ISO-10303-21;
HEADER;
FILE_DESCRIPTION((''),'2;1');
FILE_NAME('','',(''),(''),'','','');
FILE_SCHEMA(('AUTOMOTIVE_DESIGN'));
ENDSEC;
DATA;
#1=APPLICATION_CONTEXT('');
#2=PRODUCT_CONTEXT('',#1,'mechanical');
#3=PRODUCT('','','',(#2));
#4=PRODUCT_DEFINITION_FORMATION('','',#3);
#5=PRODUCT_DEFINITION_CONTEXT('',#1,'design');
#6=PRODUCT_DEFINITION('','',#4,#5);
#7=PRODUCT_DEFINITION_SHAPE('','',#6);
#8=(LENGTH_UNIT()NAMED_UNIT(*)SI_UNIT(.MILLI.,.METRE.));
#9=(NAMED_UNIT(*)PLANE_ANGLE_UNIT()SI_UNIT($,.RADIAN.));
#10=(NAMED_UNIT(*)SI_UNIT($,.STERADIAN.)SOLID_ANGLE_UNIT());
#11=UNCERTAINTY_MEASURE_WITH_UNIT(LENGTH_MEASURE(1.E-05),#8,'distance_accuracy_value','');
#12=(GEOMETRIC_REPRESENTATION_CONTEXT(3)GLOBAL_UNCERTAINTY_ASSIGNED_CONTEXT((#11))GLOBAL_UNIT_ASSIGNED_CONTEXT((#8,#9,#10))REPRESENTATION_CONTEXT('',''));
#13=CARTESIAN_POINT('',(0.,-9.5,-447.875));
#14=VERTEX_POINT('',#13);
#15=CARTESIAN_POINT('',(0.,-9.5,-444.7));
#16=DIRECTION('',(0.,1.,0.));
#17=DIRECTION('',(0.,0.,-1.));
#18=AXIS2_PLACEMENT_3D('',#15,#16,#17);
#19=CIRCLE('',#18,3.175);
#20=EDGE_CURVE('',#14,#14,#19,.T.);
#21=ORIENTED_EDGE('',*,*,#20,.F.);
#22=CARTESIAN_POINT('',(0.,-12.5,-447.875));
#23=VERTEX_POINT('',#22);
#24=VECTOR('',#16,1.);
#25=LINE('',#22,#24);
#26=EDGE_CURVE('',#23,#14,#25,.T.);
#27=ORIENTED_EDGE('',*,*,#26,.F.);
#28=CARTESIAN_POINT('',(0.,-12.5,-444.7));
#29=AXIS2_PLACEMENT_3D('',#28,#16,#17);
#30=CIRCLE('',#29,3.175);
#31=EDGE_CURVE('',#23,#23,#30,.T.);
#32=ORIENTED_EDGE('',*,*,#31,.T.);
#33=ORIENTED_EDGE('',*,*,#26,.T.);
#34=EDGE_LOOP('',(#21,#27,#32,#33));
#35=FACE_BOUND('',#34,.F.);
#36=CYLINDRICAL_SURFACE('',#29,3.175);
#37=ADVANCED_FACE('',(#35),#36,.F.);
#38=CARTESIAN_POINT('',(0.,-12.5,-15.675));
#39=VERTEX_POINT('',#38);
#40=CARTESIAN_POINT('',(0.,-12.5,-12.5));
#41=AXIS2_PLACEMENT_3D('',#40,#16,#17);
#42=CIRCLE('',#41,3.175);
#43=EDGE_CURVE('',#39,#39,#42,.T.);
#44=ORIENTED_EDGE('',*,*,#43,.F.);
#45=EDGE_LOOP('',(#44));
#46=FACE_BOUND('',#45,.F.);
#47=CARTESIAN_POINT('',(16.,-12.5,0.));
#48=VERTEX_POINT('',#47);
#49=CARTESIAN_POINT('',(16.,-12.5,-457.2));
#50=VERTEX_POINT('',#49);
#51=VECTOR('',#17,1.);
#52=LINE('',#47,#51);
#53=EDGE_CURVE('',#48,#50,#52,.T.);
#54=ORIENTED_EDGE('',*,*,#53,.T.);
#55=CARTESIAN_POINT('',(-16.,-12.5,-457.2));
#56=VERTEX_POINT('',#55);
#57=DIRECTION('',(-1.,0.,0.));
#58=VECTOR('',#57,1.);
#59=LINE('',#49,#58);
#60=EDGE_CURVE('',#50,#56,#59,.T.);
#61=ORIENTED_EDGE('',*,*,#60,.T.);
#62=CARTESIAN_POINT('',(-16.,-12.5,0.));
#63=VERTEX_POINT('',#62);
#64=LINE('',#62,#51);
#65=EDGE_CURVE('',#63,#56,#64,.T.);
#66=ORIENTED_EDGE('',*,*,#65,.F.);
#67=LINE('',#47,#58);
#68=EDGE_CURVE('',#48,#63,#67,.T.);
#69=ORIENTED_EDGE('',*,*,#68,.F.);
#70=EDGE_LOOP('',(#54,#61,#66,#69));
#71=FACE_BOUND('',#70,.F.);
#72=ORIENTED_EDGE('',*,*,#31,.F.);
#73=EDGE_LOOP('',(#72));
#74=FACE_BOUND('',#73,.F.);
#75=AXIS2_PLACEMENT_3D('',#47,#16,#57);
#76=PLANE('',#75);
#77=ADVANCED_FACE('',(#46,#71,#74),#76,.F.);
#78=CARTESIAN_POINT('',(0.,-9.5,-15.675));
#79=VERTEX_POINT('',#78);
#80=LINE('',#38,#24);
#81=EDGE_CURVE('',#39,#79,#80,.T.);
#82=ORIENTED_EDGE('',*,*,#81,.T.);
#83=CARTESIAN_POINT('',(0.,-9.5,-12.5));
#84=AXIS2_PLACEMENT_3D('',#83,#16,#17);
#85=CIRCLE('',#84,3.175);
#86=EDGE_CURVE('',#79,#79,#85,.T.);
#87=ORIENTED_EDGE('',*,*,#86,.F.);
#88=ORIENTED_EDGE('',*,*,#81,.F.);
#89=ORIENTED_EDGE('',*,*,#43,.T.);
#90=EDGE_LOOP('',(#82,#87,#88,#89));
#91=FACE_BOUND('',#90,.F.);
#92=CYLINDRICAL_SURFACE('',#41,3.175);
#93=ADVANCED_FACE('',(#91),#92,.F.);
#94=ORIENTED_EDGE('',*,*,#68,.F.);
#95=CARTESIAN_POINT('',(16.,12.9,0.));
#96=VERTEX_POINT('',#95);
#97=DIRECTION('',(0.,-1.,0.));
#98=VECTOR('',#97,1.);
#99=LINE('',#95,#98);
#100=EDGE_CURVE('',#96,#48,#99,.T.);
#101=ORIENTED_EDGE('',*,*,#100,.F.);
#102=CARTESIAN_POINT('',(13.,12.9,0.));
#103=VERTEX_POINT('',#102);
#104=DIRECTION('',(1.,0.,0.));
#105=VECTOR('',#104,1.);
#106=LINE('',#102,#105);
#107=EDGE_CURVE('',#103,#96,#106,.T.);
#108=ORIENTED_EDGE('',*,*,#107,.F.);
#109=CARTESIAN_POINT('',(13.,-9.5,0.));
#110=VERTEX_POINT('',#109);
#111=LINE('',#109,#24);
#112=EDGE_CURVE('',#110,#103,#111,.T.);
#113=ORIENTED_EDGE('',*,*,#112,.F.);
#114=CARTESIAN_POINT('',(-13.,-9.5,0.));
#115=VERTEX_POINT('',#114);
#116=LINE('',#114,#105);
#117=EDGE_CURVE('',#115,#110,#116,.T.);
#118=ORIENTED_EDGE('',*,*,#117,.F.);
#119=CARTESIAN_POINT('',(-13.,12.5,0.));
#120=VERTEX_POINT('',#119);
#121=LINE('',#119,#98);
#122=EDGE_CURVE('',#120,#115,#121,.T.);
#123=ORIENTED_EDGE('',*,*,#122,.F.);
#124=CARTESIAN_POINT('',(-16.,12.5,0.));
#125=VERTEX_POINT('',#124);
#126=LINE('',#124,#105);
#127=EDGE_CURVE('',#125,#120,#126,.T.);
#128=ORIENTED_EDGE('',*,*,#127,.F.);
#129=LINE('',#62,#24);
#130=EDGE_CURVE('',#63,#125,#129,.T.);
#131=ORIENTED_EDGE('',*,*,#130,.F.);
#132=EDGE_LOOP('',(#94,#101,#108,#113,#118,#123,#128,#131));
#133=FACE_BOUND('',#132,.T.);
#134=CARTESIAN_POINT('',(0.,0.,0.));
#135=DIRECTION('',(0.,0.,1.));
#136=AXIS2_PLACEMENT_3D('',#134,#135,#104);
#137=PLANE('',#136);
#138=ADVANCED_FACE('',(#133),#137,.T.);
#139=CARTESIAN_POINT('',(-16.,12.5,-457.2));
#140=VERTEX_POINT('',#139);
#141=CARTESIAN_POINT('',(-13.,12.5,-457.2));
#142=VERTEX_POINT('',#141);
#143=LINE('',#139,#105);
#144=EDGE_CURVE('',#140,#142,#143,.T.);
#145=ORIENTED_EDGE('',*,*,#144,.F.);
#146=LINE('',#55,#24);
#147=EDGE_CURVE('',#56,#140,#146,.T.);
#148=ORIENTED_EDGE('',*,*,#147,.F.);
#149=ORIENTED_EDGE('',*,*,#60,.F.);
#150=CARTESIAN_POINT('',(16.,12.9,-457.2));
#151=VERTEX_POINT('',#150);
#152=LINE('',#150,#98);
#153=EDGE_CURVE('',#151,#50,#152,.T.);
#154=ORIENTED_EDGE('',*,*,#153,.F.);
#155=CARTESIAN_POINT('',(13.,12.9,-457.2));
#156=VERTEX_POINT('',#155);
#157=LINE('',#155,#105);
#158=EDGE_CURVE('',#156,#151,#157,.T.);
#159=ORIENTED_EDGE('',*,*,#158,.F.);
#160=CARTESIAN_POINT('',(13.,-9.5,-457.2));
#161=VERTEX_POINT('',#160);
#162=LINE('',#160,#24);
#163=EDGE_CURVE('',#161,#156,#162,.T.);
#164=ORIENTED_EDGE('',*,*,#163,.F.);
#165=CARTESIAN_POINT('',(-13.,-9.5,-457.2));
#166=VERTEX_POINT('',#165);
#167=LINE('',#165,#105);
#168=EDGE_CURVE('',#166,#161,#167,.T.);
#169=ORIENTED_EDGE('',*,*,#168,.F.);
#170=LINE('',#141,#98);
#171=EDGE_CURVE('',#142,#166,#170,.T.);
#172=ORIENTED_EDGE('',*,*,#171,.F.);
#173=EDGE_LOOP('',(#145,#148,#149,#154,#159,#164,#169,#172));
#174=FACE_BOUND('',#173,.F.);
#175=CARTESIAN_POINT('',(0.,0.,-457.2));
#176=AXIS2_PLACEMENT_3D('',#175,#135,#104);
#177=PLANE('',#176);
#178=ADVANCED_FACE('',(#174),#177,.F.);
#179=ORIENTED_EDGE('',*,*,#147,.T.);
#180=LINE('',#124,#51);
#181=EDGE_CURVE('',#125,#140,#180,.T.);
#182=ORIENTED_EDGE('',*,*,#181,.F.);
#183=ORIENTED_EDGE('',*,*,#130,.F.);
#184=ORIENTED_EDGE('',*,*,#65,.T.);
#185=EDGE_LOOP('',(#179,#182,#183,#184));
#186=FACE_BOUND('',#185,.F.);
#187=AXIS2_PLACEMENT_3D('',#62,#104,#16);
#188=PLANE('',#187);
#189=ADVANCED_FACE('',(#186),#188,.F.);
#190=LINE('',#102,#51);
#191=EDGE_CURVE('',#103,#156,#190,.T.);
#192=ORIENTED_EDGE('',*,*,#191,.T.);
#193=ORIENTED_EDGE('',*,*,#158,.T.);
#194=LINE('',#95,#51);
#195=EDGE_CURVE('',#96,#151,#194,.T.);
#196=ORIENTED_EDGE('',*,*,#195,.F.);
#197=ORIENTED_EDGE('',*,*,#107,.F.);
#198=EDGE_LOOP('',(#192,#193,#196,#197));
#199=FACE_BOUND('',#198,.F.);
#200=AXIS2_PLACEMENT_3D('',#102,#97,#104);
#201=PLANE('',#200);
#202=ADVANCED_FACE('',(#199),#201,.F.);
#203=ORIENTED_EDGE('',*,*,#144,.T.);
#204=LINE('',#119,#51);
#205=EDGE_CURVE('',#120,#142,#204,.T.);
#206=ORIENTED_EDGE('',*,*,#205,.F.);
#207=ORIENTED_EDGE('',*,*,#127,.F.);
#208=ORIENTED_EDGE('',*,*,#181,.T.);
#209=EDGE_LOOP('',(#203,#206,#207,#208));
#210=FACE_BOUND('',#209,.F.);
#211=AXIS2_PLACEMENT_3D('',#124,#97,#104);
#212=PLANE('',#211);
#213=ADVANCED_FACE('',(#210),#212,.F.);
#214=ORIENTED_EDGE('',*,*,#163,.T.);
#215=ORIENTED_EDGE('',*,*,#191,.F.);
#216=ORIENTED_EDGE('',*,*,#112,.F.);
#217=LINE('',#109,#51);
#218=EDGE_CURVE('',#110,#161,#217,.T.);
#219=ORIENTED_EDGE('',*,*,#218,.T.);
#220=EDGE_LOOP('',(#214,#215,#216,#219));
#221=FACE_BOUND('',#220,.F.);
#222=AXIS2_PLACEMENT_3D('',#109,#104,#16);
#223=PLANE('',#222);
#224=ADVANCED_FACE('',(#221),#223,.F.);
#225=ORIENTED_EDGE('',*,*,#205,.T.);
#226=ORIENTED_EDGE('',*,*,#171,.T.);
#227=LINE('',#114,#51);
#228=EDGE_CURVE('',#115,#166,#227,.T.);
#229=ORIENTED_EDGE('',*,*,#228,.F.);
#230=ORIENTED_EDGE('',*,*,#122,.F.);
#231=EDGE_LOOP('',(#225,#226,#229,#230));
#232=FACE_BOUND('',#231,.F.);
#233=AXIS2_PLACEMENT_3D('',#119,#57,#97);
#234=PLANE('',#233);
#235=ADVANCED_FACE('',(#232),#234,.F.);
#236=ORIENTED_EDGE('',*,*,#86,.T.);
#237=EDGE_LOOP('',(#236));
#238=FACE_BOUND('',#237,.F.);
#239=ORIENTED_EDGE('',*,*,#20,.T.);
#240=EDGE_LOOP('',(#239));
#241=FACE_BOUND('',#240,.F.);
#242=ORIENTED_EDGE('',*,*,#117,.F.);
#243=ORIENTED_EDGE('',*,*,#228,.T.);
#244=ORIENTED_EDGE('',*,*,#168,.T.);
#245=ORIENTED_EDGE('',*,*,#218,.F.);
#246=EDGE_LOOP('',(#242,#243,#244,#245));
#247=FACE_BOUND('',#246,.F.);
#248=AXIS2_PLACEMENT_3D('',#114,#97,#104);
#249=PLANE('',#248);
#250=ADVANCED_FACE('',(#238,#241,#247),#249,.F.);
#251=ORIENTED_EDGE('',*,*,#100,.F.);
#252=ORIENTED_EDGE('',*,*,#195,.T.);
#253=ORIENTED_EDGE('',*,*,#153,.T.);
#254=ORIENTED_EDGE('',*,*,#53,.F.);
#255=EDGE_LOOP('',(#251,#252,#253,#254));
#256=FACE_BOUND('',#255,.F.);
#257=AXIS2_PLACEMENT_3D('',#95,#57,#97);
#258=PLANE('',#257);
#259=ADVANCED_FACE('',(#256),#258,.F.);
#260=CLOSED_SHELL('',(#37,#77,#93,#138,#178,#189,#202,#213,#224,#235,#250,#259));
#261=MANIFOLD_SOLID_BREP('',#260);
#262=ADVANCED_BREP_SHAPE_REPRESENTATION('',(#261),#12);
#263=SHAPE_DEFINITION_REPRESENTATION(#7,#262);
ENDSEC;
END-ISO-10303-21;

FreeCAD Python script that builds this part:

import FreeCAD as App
import Part
import Sketcher
from FreeCAD import Vector
Q = App.Units.Quantity


def add_polygon(sketch, points):
    """Adds a closed chain of lines whose ends are joined by coincident constraints."""
    first, n = sketch.GeometryCount, len(points)
    for a, b in zip(points, points[1:] + points[:1]):
        sketch.addGeometry(Part.LineSegment(App.Vector(*a, 0), App.Vector(*b, 0)), False)
    for i in range(n):
        sketch.addConstraint(Sketcher.Constraint("Coincident", first + i, 2, first + (i + 1) % n, 1))

doc = App.newDocument("Part")
body = doc.addObject("PartDesign::Body", "Body")

sketch1 = body.newObject("Sketcher::SketchObject", "Sketch")
sketch1.AttachmentSupport = (doc.getObject("XY_Plane"), [""])
sketch1.MapMode = "FlatFace"
add_polygon(sketch1, [(-13, 12.5), (-16, 12.5), (-16, -12.5), (16, -12.5), (16, 12.9), (13, 12.9), (13, -9.5), (-13, -9.5)])
sketch1.addConstraint([
    Sketcher.Constraint("Horizontal", 0),
    Sketcher.Constraint("Vertical", 1),
    Sketcher.Constraint("Horizontal", 2),
    Sketcher.Constraint("Vertical", 3),
    Sketcher.Constraint("Horizontal", 4),
    Sketcher.Constraint("Vertical", 5),
    Sketcher.Constraint("Horizontal", 6),
    Sketcher.Constraint("Vertical", 7),
    Sketcher.Constraint("Symmetric", 0, 2, 2, 2, -1, 1),
    Sketcher.Constraint("Equal", 0, 4),
    Sketcher.Constraint("DistanceX", 0, 2, 0, 1, Q("3 mm")),
    Sketcher.Constraint("DistanceX", 2, 1, 2, 2, Q("32 mm")),
    Sketcher.Constraint("DistanceY", 1, 2, 1, 1, Q("25 mm")),
    Sketcher.Constraint("DistanceY", 2, 2, 5, 2, Q("3 mm")),
    Sketcher.Constraint("DistanceY", 3, 1, 3, 2, Q("25.4 mm")),
])
pad1 = body.newObject("PartDesign::Pad", "Pad")
pad1.Profile = sketch1
pad1.Length = 457.2
pad1.Reversed = True

sketch2 = body.newObject("Sketcher::SketchObject", "Sketch001")
sketch2.AttachmentSupport = (doc.getObject("XZ_Plane"), [""])
sketch2.MapMode = "FlatFace"
sketch2.AttachmentOffset = App.Placement(Vector(0, 0, 12.5), App.Rotation())
sketch2.addGeometry([
    Part.Circle(Vector(0, -444.7, 0), Vector(0, 0, 1), 3.2),
    Part.Circle(Vector(0, -12.5, 0), Vector(0, 0, 1), 3.2),
], False)
sketch2.addConstraint([
    Sketcher.Constraint("Equal", 0, 1),
    Sketcher.Constraint("PointOnObject", 0, 3, -2),
    Sketcher.Constraint("PointOnObject", 1, 3, -2),
    Sketcher.Constraint("Diameter", 0, Q("6.35 mm")),
    Sketcher.Constraint("DistanceY", 0, 3, -1, 1, Q("444.7 mm")),
    Sketcher.Constraint("DistanceY", 1, 3, -1, 1, Q("12.5 mm")),
])
doc.recompute()
hole = body.newObject("PartDesign::Hole", "Hole")
hole.Profile = sketch2
hole.ThreadType = "None"
hole.Diameter = 6.35
hole.DepthType = "Dimension"
hole.Depth = 3
hole.DrillPoint = "Angled"
hole.DrillPointAngle = 118

doc.recompute()
